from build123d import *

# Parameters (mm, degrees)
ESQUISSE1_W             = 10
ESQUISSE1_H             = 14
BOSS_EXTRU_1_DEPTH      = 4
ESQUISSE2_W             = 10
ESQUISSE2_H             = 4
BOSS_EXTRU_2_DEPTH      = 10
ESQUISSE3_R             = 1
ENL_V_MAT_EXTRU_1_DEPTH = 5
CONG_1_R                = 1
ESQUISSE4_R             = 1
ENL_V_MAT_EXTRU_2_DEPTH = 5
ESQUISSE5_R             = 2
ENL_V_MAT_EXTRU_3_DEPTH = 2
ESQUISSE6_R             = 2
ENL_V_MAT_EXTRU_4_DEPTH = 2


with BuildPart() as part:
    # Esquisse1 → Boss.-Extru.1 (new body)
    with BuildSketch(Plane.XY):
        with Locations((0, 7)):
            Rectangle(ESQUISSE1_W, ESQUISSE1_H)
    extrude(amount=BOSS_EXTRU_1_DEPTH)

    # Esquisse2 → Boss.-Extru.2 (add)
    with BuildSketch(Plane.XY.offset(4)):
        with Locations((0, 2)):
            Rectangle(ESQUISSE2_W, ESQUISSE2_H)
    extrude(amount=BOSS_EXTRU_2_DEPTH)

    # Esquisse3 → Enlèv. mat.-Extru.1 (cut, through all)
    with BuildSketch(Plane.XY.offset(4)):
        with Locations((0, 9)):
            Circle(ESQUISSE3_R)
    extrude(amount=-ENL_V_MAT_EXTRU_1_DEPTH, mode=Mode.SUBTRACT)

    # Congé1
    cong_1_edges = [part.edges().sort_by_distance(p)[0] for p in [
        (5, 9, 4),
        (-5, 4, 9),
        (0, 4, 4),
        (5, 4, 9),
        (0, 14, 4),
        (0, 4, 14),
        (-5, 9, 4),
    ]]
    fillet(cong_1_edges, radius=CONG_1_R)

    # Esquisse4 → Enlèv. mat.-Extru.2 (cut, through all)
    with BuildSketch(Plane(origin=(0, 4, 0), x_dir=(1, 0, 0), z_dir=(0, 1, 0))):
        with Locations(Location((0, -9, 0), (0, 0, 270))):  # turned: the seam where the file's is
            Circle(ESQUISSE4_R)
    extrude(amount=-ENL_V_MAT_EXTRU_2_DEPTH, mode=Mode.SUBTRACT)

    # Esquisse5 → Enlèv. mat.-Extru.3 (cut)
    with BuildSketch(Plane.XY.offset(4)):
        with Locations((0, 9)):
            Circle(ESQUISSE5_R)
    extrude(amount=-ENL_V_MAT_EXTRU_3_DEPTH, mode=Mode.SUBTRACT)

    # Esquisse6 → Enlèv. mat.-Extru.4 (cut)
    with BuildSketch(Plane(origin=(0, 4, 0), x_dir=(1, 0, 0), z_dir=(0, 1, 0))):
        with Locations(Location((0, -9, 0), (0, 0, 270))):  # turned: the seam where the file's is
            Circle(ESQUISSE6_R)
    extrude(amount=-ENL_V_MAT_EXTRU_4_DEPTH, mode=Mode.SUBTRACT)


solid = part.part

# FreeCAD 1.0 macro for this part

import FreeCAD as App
import Part
import Sketcher


def edges_at(feature, points):
    """Names of the edges that pass closest to the given points."""
    edges = feature.Shape.Edges
    near = lambda p: min(range(len(edges)), key=lambda i: edges[i].distToShape(Part.Vertex(*p))[0])
    return sorted({f"Edge{near(p) + 1}" for p in points})


def add_polygon(sketch, points):
    """Adds a closed chain of lines whose ends are joined by coincident constraints."""
    first, n = sketch.GeometryCount, len(points)
    for a, b in zip(points, points[1:] + points[:1]):
        sketch.addGeometry(Part.LineSegment(App.Vector(*a, 0), App.Vector(*b, 0)), False)
    for i in range(n):
        sketch.addConstraint(Sketcher.Constraint("Coincident", first + i, 2, first + (i + 1) % n, 1))

doc = App.newDocument("Part")
body = doc.addObject("PartDesign::Body", "Body")

# Sketch on XY plane
sketch1 = doc.addObject("Sketcher::SketchObject", "Sketch")
body.addObject(sketch1)
sketch1.AttachmentSupport = (doc.XY_Plane, [""])
sketch1.MapMode = "FlatFace"
add_polygon(sketch1, [(-5, 14), (-5, 0), (5, 0), (5, 14)])  # lines 0-3
sketch1.addConstraint([
    Sketcher.Constraint("Vertical", 0),
    Sketcher.Constraint("Horizontal", 1),
    Sketcher.Constraint("Vertical", 2),
    Sketcher.Constraint("Horizontal", 3),
    Sketcher.Constraint("Symmetric", 0, 2, 1, 2, -1, 1),
    Sketcher.Constraint("DistanceX", 1, 1, 1, 2, 10.0),
    Sketcher.Constraint("DistanceY", 0, 2, 0, 1, 14.0),
])
pad1 = doc.addObject("PartDesign::Pad", "Pad")
body.addObject(pad1)
pad1.Profile = sketch1
pad1.Length = 4

# Sketch on XY plane
sketch2 = doc.addObject("Sketcher::SketchObject", "Sketch001")
body.addObject(sketch2)
sketch2.AttachmentSupport = (doc.XY_Plane, [""])
sketch2.MapMode = "FlatFace"
sketch2.AttachmentOffset = App.Placement(App.Vector(0, 0, 4), App.Rotation())
add_polygon(sketch2, [(-5, 4), (-5, 0), (5, 0), (5, 4)])  # lines 0-3
sketch2.addConstraint([
    Sketcher.Constraint("Vertical", 0),
    Sketcher.Constraint("Horizontal", 1),
    Sketcher.Constraint("Vertical", 2),
    Sketcher.Constraint("Horizontal", 3),
    Sketcher.Constraint("Symmetric", 0, 2, 1, 2, -1, 1),
    Sketcher.Constraint("DistanceX", 1, 1, 1, 2, 10.0),
    Sketcher.Constraint("DistanceY", 0, 2, 0, 1, 4.0),
])
pad2 = doc.addObject("PartDesign::Pad", "Pad001")
body.addObject(pad2)
pad2.Profile = sketch2
pad2.Length = 10

# Sketch on XY plane
sketch3 = doc.addObject("Sketcher::SketchObject", "Sketch002")
body.addObject(sketch3)
sketch3.AttachmentSupport = (doc.XY_Plane, [""])
sketch3.MapMode = "FlatFace"
sketch3.AttachmentOffset = App.Placement(App.Vector(0, 0, 4), App.Rotation())
sketch3.addGeometry(Part.Circle(App.Vector(0, 9, 0), App.Vector(0, 0, 1), 1), False)
sketch3.addConstraint([
    Sketcher.Constraint("PointOnObject", 0, 3, -2),
    Sketcher.Constraint("Diameter", 0, 2.0),
    Sketcher.Constraint("DistanceY", -1, 1, 0, 3, 9.0),
])
pocket1 = doc.addObject("PartDesign::Pocket", "Pocket")
body.addObject(pocket1)
pocket1.Profile = sketch3
pocket1.Type = "ThroughAll"
doc.recompute()

fillet = doc.addObject("PartDesign::Fillet", "Fillet")
body.addObject(fillet)
fillet.Base = (pocket1, edges_at(pocket1, [
    (5, 9, 4),
    (-5, 4, 9),
    (0, 4, 4),
    (5, 4, 9),
    (0, 14, 4),
    (0, 4, 14),
    (-5, 9, 4),
]))
fillet.Radius = 1

# Sketch on XZ plane
sketch4 = doc.addObject("Sketcher::SketchObject", "Sketch003")
body.addObject(sketch4)
sketch4.AttachmentSupport = (doc.XZ_Plane, [""])
sketch4.MapMode = "FlatFace"
sketch4.AttachmentOffset = App.Placement(App.Vector(0, 0, -4), App.Rotation())
sketch4.addGeometry(Part.Circle(App.Vector(0, 9, 0), App.Vector(0, 0, 1), 1), False)
sketch4.addConstraint([
    Sketcher.Constraint("PointOnObject", 0, 3, -2),
    Sketcher.Constraint("Diameter", 0, 2.0),
    Sketcher.Constraint("DistanceY", -1, 1, 0, 3, 9.0),
])
pocket2 = doc.addObject("PartDesign::Pocket", "Pocket001")
body.addObject(pocket2)
pocket2.Profile = sketch4
pocket2.Type = "ThroughAll"
pocket2.Reversed = True

# Sketch on XY plane
sketch5 = doc.addObject("Sketcher::SketchObject", "Sketch004")
body.addObject(sketch5)
sketch5.AttachmentSupport = (doc.XY_Plane, [""])
sketch5.MapMode = "FlatFace"
sketch5.AttachmentOffset = App.Placement(App.Vector(0, 0, 4), App.Rotation())
sketch5.addGeometry(Part.Circle(App.Vector(0, 9, 0), App.Vector(0, 0, 1), 2), False)
sketch5.addConstraint([
    Sketcher.Constraint("PointOnObject", 0, 3, -2),
    Sketcher.Constraint("Diameter", 0, 4.0),
    Sketcher.Constraint("DistanceY", -1, 1, 0, 3, 9.0),
])
pocket3 = doc.addObject("PartDesign::Pocket", "Pocket002")
body.addObject(pocket3)
pocket3.Profile = sketch5
pocket3.Length = 2

# Sketch on XZ plane
sketch6 = doc.addObject("Sketcher::SketchObject", "Sketch005")
body.addObject(sketch6)
sketch6.AttachmentSupport = (doc.XZ_Plane, [""])
sketch6.MapMode = "FlatFace"
sketch6.AttachmentOffset = App.Placement(App.Vector(0, 0, -4), App.Rotation())
sketch6.addGeometry(Part.Circle(App.Vector(0, 9, 0), App.Vector(0, 0, 1), 2), False)
sketch6.addConstraint([
    Sketcher.Constraint("PointOnObject", 0, 3, -2),
    Sketcher.Constraint("Diameter", 0, 4.0),
    Sketcher.Constraint("DistanceY", -1, 1, 0, 3, 9.0),
])
pocket4 = doc.addObject("PartDesign::Pocket", "Pocket003")
body.addObject(pocket4)
pocket4.Profile = sketch6
pocket4.Length = 2
pocket4.Reversed = True

doc.recompute()
